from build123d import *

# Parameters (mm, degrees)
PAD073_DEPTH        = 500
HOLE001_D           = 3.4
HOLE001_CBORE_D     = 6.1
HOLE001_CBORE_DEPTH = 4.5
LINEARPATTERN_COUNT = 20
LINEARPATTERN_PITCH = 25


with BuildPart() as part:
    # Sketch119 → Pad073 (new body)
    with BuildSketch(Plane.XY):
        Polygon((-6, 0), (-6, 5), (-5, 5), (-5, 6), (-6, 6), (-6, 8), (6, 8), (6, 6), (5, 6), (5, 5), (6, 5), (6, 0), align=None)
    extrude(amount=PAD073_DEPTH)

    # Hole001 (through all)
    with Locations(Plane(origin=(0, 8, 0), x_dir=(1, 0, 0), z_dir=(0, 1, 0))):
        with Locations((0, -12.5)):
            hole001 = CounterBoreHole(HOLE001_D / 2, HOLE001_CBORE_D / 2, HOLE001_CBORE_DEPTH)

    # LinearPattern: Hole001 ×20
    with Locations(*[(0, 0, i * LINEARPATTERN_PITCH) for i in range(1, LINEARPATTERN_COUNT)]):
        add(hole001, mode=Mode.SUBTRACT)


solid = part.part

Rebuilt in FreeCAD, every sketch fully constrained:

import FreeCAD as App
import Part
import Sketcher

V = App.Vector
Q = App.Units.Quantity

doc = App.newDocument("Part")
body = doc.addObject("PartDesign::Body", "Body")

sketch1 = doc.addObject("Sketcher::SketchObject", "Sketch")
body.addObject(sketch1)
sketch1.AttachmentSupport = (doc.XY_Plane, [""])
sketch1.MapMode = "FlatFace"
sketch1.addGeometry(Part.LineSegment(V(-6, 5, 0), V(-6, 0, 0)), False)
sketch1.addGeometry(Part.LineSegment(V(-6, 0, 0), V(6, 0, 0)), False)
sketch1.addGeometry(Part.LineSegment(V(6, 0, 0), V(6, 5, 0)), False)
sketch1.addGeometry(Part.LineSegment(V(6, 5, 0), V(5, 5, 0)), False)
sketch1.addGeometry(Part.LineSegment(V(5, 5, 0), V(5, 6, 0)), False)
sketch1.addGeometry(Part.LineSegment(V(5, 6, 0), V(6, 6, 0)), False)
sketch1.addGeometry(Part.LineSegment(V(6, 6, 0), V(6, 8, 0)), False)
sketch1.addGeometry(Part.LineSegment(V(6, 8, 0), V(-6, 8, 0)), False)
sketch1.addGeometry(Part.LineSegment(V(-6, 8, 0), V(-6, 6, 0)), False)
sketch1.addGeometry(Part.LineSegment(V(-6, 6, 0), V(-5, 6, 0)), False)
sketch1.addGeometry(Part.LineSegment(V(-5, 6, 0), V(-5, 5, 0)), False)
sketch1.addGeometry(Part.LineSegment(V(-5, 5, 0), V(-6, 5, 0)), False)
sketch1.addConstraint(Sketcher.Constraint("Coincident", 0, 2, 1, 1))
sketch1.addConstraint(Sketcher.Constraint("Coincident", 1, 2, 2, 1))
sketch1.addConstraint(Sketcher.Constraint("Coincident", 2, 2, 3, 1))
sketch1.addConstraint(Sketcher.Constraint("Coincident", 3, 2, 4, 1))
sketch1.addConstraint(Sketcher.Constraint("Coincident", 4, 2, 5, 1))
sketch1.addConstraint(Sketcher.Constraint("Coincident", 5, 2, 6, 1))
sketch1.addConstraint(Sketcher.Constraint("Coincident", 6, 2, 7, 1))
sketch1.addConstraint(Sketcher.Constraint("Coincident", 7, 2, 8, 1))
sketch1.addConstraint(Sketcher.Constraint("Coincident", 8, 2, 9, 1))
sketch1.addConstraint(Sketcher.Constraint("Coincident", 9, 2, 10, 1))
sketch1.addConstraint(Sketcher.Constraint("Coincident", 10, 2, 11, 1))
sketch1.addConstraint(Sketcher.Constraint("Coincident", 11, 2, 0, 1))
sketch1.addConstraint(Sketcher.Constraint("Vertical", 0))
sketch1.addConstraint(Sketcher.Constraint("Horizontal", 1))
sketch1.addConstraint(Sketcher.Constraint("Vertical", 2))
sketch1.addConstraint(Sketcher.Constraint("Horizontal", 3))
sketch1.addConstraint(Sketcher.Constraint("Vertical", 4))
sketch1.addConstraint(Sketcher.Constraint("Horizontal", 5))
sketch1.addConstraint(Sketcher.Constraint("Vertical", 6))
sketch1.addConstraint(Sketcher.Constraint("Horizontal", 7))
sketch1.addConstraint(Sketcher.Constraint("Vertical", 8))
sketch1.addConstraint(Sketcher.Constraint("Horizontal", 9))
sketch1.addConstraint(Sketcher.Constraint("Vertical", 10))
sketch1.addConstraint(Sketcher.Constraint("Horizontal", 11))
sketch1.addConstraint(Sketcher.Constraint("Symmetric", 0, 2, 1, 2, -1, 1))
sketch1.addConstraint(Sketcher.Constraint("Symmetric", 5, 2, 8, 2, -2))
sketch1.addConstraint(Sketcher.Constraint("Symmetric", 3, 2, 10, 2, -2))
sketch1.addConstraint(Sketcher.Constraint("Vertical", 2, 2, 5, 2))
sketch1.addConstraint(Sketcher.Constraint("Equal", 11, 4))
sketch1.addConstraint(Sketcher.Constraint("DistanceX", 1, 1, 1, 2, Q("12 mm")))
sketch1.addConstraint(Sketcher.Constraint("DistanceX", 3, 2, 3, 1, Q("1 mm")))
sketch1.addConstraint(Sketcher.Constraint("DistanceY", 0, 2, 0, 1, Q("5 mm")))
sketch1.addConstraint(Sketcher.Constraint("DistanceY", 6, 1, 6, 2, Q("2 mm")))
pad1 = doc.addObject("PartDesign::Pad", "Pad")
body.addObject(pad1)
pad1.Profile = sketch1
pad1.Length = 500

sketch2 = doc.addObject("Sketcher::SketchObject", "Sketch001")
body.addObject(sketch2)
sketch2.AttachmentSupport = (doc.XZ_Plane, [""])
sketch2.MapMode = "FlatFace"
sketch2.AttachmentOffset = App.Placement(V(0, 0, -8), App.Rotation())
sketch2.addGeometry(Part.Circle(V(0, 12.5, 0), V(0, 0, 1), 1.7), False)
sketch2.addConstraint(Sketcher.Constraint("PointOnObject", 0, 3, -2))
sketch2.addConstraint(Sketcher.Constraint("Diameter", 0, Q("3.4 mm")))
sketch2.addConstraint(Sketcher.Constraint("DistanceY", -1, 1, 0, 3, Q("12.5 mm")))
doc.recompute()
hole = doc.addObject("PartDesign::Hole", "Hole")
body.addObject(hole)
hole.Profile = sketch2
hole.ThreadType = "None"
hole.Diameter = 3.4
hole.DepthType = "ThroughAll"
hole.HoleCutType = "Counterbore"
hole.HoleCutDiameter = 6.1
hole.HoleCutDepth = 4.5
hole.Reversed = True
doc.recompute()

linearpattern = doc.addObject("PartDesign::LinearPattern", "LinearPattern")
body.addObject(linearpattern)
linearpattern.Originals = [hole]
linearpattern.Direction = (doc.Z_Axis, [""])
linearpattern.Mode = "offset"
linearpattern.Offset = 25
linearpattern.Occurrences = 20
body.Tip = linearpattern

doc.recompute()
